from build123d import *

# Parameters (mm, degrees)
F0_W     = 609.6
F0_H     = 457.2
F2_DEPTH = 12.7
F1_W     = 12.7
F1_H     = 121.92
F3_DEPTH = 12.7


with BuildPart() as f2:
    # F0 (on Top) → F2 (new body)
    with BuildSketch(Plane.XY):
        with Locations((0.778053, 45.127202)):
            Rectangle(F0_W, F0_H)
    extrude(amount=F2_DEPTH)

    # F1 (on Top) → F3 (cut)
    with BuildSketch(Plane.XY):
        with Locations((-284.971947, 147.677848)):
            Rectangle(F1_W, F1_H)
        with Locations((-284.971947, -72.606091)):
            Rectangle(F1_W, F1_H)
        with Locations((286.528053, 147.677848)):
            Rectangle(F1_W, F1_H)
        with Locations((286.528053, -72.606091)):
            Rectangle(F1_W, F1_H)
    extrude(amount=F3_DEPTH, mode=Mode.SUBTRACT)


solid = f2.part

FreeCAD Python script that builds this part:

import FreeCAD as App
import Part
import Sketcher

V = App.Vector
Q = App.Units.Quantity


def add_polygon(sketch, points):
    """Adds a closed chain of lines whose ends are joined by coincident constraints."""
    first, n = sketch.GeometryCount, len(points)
    for a, b in zip(points, points[1:] + points[:1]):
        sketch.addGeometry(Part.LineSegment(App.Vector(*a, 0), App.Vector(*b, 0)), False)
    for i in range(n):
        sketch.addConstraint(Sketcher.Constraint("Coincident", first + i, 2, first + (i + 1) % n, 1))

doc = App.newDocument("Part")
body = doc.addObject("PartDesign::Body", "Body")

# Sketch on XY plane
sketch1 = body.newObject("Sketcher::SketchObject", "Sketch")
sketch1.AttachmentSupport = (doc.getObject("XY_Plane"), [""])
sketch1.MapMode = "FlatFace"
add_polygon(sketch1, [(-304.021947, 273.727202), (-304.021947, -183.472798), (305.578053, -183.472798), (305.578053, 273.727202)])  # lines 0-3
sketch1.addConstraint([
    Sketcher.Constraint("Vertical", 0),
    Sketcher.Constraint("Horizontal", 1),
    Sketcher.Constraint("Vertical", 2),
    Sketcher.Constraint("Horizontal", 3),
    Sketcher.Constraint("DistanceX", 1, 1, 1, 2, Q("24 in")),
    Sketcher.Constraint("DistanceY", 0, 2, 0, 1, Q("18 in")),
    Sketcher.Constraint("DistanceY", 0, 2, -1, 1, Q("183.472798 mm")),
    Sketcher.Constraint("DistanceX", 0, 2, -1, 1, Q("304.021947 mm")),
])
pad1 = body.newObject("PartDesign::Pad", "Pad")
pad1.Profile = sketch1
pad1.Length = Q("0.5 in")

# Sketch on XY plane
sketch2 = body.newObject("Sketcher::SketchObject", "Sketch001")
sketch2.AttachmentSupport = (doc.getObject("XY_Plane"), [""])
sketch2.MapMode = "FlatFace"
add_polygon(sketch2, [(-291.321947, 208.637848), (-291.321947, 86.717848), (-278.621947, 86.717848), (-278.621947, 208.637848)])  # lines 0-3
add_polygon(sketch2, [(-291.321947, -11.646091), (-291.321947, -133.566091), (-278.621947, -133.566091), (-278.621947, -11.646091)])  # lines 4-7
add_polygon(sketch2, [(280.178053, 208.637848), (280.178053, 86.717848), (292.878053, 86.717848), (292.878053, 208.637848)])  # lines 8-11
add_polygon(sketch2, [(280.178053, -11.646091), (280.178053, -133.566091), (292.878053, -133.566091), (292.878053, -11.646091)])  # lines 12-15
sketch2.addConstraint([
    Sketcher.Constraint("Vertical", 0),
    Sketcher.Constraint("Horizontal", 1),
    Sketcher.Constraint("Vertical", 2),
    Sketcher.Constraint("Horizontal", 3),
    Sketcher.Constraint("Vertical", 4),
    Sketcher.Constraint("Horizontal", 5),
    Sketcher.Constraint("Vertical", 6),
    Sketcher.Constraint("Horizontal", 7),
    Sketcher.Constraint("Vertical", 8),
    Sketcher.Constraint("Horizontal", 9),
    Sketcher.Constraint("Vertical", 10),
    Sketcher.Constraint("Horizontal", 11),
    Sketcher.Constraint("Vertical", 12),
    Sketcher.Constraint("Horizontal", 13),
    Sketcher.Constraint("Vertical", 14),
    Sketcher.Constraint("Horizontal", 15),
    Sketcher.Constraint("Horizontal", 1, 2, 8, 2),
    Sketcher.Constraint("Horizontal", 3, 2, 10, 2),
    Sketcher.Constraint("Horizontal", 5, 2, 12, 2),
    Sketcher.Constraint("Horizontal", 7, 2, 14, 2),
    Sketcher.Constraint("Vertical", 3, 2, 4, 2),
    Sketcher.Constraint("Vertical", 2, 2, 5, 2),
    Sketcher.Constraint("Vertical", 11, 2, 12, 2),
    Sketcher.Constraint("Vertical", 10, 2, 13, 2),
    Sketcher.Constraint("Equal", 7, 9),
    Sketcher.Constraint("Equal", 2, 4),
    Sketcher.Constraint("DistanceX", 1, 1, 1, 2, Q("0.5 in")),
    Sketcher.Constraint("DistanceY", 0, 2, 0, 1, Q("4.8 in")),
    Sketcher.Constraint("DistanceX", 1, 2, 8, 2, Q("22 in")),
    Sketcher.Constraint("DistanceY", -1, 1, 0, 2, Q("86.717848 mm")),
    Sketcher.Constraint("DistanceY", 4, 2, -1, 1, Q("133.566091 mm")),
    Sketcher.Constraint("DistanceX", 0, 2, -1, 1, Q("291.321947 mm")),
])
pocket1 = body.newObject("PartDesign::Pocket", "Pocket")
pocket1.Profile = sketch2
pocket1.Length = Q("0.5 in")
pocket1.Reversed = True

doc.recompute()
